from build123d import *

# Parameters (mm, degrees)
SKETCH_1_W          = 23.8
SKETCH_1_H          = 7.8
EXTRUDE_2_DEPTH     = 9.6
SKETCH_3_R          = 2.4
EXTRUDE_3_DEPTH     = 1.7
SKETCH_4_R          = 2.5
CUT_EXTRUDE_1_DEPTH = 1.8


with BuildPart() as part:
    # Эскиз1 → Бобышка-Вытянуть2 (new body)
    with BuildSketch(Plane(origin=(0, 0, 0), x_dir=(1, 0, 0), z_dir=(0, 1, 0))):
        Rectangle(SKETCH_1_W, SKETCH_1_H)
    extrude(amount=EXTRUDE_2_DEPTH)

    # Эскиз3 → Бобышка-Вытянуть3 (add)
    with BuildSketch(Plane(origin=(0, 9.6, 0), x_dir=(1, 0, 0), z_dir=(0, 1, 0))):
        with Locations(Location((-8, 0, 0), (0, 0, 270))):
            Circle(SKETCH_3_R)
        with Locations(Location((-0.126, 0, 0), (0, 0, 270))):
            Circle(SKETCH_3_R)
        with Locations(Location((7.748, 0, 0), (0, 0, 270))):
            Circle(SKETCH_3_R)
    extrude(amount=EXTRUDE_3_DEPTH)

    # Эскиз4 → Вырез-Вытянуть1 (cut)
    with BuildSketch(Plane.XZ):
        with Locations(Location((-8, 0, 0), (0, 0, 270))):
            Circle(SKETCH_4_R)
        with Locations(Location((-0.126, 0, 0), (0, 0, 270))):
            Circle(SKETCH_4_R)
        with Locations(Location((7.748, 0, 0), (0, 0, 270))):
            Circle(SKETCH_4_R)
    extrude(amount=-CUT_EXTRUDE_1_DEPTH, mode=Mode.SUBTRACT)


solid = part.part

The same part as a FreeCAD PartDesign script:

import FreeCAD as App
import Part
import Sketcher

doc = App.newDocument("Part")
body = doc.addObject("PartDesign::Body", "Body")

# Sketch on XZ plane
sketch1 = body.newObject("Sketcher::SketchObject", "Sketch")
sketch1.AttachmentSupport = (doc.getObject("XZ_Plane"), [""])
sketch1.MapMode = "FlatFace"
sketch1.addGeometry(Part.LineSegment(App.Vector(-11.9, -3.9, 0), App.Vector(-11.9, 3.9, 0)), False)
sketch1.addGeometry(Part.LineSegment(App.Vector(-11.9, 3.9, 0), App.Vector(11.9, 3.9, 0)), False)
sketch1.addGeometry(Part.LineSegment(App.Vector(11.9, 3.9, 0), App.Vector(11.9, -3.9, 0)), False)
sketch1.addGeometry(Part.LineSegment(App.Vector(11.9, -3.9, 0), App.Vector(-11.9, -3.9, 0)), False)
sketch1.addConstraint(Sketcher.Constraint("Coincident", 0, 2, 1, 1))
sketch1.addConstraint(Sketcher.Constraint("Coincident", 1, 2, 2, 1))
sketch1.addConstraint(Sketcher.Constraint("Coincident", 2, 2, 3, 1))
sketch1.addConstraint(Sketcher.Constraint("Coincident", 3, 2, 0, 1))
sketch1.addConstraint(Sketcher.Constraint("Vertical", 0))
sketch1.addConstraint(Sketcher.Constraint("Horizontal", 1))
sketch1.addConstraint(Sketcher.Constraint("Vertical", 2))
sketch1.addConstraint(Sketcher.Constraint("Horizontal", 3))
sketch1.addConstraint(Sketcher.Constraint("Symmetric", 0, 2, 2, 2, -1, 1))
sketch1.addConstraint(Sketcher.Constraint("DistanceX", 1, 1, 1, 2, 23.8))
sketch1.addConstraint(Sketcher.Constraint("DistanceY", 0, 1, 0, 2, 7.8))
pad1 = body.newObject("PartDesign::Pad", "Pad")
pad1.Profile = sketch1
pad1.Length = 9.6
pad1.Reversed = True

# Sketch on XZ plane
sketch2 = body.newObject("Sketcher::SketchObject", "Sketch001")
sketch2.AttachmentSupport = (doc.getObject("XZ_Plane"), [""])
sketch2.MapMode = "FlatFace"
sketch2.AttachmentOffset = App.Placement(App.Vector(0, 0, -9.6), App.Rotation())
sketch2.addGeometry(Part.Circle(App.Vector(-8, 0, 0), App.Vector(0, 0, 1), 2.4), False)
sketch2.addGeometry(Part.Circle(App.Vector(-0.126, 0, 0), App.Vector(0, 0, 1), 2.4), False)
sketch2.addGeometry(Part.Circle(App.Vector(7.748, 0, 0), App.Vector(0, 0, 1), 2.4), False)
sketch2.addConstraint(Sketcher.Constraint("Equal", 0, 1))
sketch2.addConstraint(Sketcher.Constraint("Equal", 1, 2))
sketch2.addConstraint(Sketcher.Constraint("PointOnObject", 0, 3, -1))
sketch2.addConstraint(Sketcher.Constraint("PointOnObject", 1, 3, -1))
sketch2.addConstraint(Sketcher.Constraint("PointOnObject", 2, 3, -1))
sketch2.addConstraint(Sketcher.Constraint("Diameter", 0, 4.8))
sketch2.addConstraint(Sketcher.Constraint("DistanceX", 0, 3, -1, 1, 8.0))
sketch2.addConstraint(Sketcher.Constraint("DistanceX", 1, 3, -1, 1, 0.126))
sketch2.addConstraint(Sketcher.Constraint("DistanceX", -1, 1, 2, 3, 7.748))
pad2 = body.newObject("PartDesign::Pad", "Pad001")
pad2.Profile = sketch2
pad2.Length = 1.7
pad2.Reversed = True

# Sketch on XZ plane
sketch3 = body.newObject("Sketcher::SketchObject", "Sketch002")
sketch3.AttachmentSupport = (doc.getObject("XZ_Plane"), [""])
sketch3.MapMode = "FlatFace"
sketch3.addGeometry(Part.Circle(App.Vector(-8, 0, 0), App.Vector(0, 0, 1), 2.5), False)
sketch3.addGeometry(Part.Circle(App.Vector(-0.126, 0, 0), App.Vector(0, 0, 1), 2.5), False)
sketch3.addGeometry(Part.Circle(App.Vector(7.748, 0, 0), App.Vector(0, 0, 1), 2.5), False)
sketch3.addConstraint(Sketcher.Constraint("Equal", 0, 1))
sketch3.addConstraint(Sketcher.Constraint("Equal", 1, 2))
sketch3.addConstraint(Sketcher.Constraint("PointOnObject", 0, 3, -1))
sketch3.addConstraint(Sketcher.Constraint("PointOnObject", 1, 3, -1))
sketch3.addConstraint(Sketcher.Constraint("PointOnObject", 2, 3, -1))
sketch3.addConstraint(Sketcher.Constraint("Diameter", 0, 5.0))
sketch3.addConstraint(Sketcher.Constraint("DistanceX", 0, 3, -1, 1, 8.0))
sketch3.addConstraint(Sketcher.Constraint("DistanceX", 1, 3, -1, 1, 0.126))
sketch3.addConstraint(Sketcher.Constraint("DistanceX", -1, 1, 2, 3, 7.748))
pocket1 = body.newObject("PartDesign::Pocket", "Pocket")
pocket1.Profile = sketch3
pocket1.Length = 1.8

doc.recompute()
